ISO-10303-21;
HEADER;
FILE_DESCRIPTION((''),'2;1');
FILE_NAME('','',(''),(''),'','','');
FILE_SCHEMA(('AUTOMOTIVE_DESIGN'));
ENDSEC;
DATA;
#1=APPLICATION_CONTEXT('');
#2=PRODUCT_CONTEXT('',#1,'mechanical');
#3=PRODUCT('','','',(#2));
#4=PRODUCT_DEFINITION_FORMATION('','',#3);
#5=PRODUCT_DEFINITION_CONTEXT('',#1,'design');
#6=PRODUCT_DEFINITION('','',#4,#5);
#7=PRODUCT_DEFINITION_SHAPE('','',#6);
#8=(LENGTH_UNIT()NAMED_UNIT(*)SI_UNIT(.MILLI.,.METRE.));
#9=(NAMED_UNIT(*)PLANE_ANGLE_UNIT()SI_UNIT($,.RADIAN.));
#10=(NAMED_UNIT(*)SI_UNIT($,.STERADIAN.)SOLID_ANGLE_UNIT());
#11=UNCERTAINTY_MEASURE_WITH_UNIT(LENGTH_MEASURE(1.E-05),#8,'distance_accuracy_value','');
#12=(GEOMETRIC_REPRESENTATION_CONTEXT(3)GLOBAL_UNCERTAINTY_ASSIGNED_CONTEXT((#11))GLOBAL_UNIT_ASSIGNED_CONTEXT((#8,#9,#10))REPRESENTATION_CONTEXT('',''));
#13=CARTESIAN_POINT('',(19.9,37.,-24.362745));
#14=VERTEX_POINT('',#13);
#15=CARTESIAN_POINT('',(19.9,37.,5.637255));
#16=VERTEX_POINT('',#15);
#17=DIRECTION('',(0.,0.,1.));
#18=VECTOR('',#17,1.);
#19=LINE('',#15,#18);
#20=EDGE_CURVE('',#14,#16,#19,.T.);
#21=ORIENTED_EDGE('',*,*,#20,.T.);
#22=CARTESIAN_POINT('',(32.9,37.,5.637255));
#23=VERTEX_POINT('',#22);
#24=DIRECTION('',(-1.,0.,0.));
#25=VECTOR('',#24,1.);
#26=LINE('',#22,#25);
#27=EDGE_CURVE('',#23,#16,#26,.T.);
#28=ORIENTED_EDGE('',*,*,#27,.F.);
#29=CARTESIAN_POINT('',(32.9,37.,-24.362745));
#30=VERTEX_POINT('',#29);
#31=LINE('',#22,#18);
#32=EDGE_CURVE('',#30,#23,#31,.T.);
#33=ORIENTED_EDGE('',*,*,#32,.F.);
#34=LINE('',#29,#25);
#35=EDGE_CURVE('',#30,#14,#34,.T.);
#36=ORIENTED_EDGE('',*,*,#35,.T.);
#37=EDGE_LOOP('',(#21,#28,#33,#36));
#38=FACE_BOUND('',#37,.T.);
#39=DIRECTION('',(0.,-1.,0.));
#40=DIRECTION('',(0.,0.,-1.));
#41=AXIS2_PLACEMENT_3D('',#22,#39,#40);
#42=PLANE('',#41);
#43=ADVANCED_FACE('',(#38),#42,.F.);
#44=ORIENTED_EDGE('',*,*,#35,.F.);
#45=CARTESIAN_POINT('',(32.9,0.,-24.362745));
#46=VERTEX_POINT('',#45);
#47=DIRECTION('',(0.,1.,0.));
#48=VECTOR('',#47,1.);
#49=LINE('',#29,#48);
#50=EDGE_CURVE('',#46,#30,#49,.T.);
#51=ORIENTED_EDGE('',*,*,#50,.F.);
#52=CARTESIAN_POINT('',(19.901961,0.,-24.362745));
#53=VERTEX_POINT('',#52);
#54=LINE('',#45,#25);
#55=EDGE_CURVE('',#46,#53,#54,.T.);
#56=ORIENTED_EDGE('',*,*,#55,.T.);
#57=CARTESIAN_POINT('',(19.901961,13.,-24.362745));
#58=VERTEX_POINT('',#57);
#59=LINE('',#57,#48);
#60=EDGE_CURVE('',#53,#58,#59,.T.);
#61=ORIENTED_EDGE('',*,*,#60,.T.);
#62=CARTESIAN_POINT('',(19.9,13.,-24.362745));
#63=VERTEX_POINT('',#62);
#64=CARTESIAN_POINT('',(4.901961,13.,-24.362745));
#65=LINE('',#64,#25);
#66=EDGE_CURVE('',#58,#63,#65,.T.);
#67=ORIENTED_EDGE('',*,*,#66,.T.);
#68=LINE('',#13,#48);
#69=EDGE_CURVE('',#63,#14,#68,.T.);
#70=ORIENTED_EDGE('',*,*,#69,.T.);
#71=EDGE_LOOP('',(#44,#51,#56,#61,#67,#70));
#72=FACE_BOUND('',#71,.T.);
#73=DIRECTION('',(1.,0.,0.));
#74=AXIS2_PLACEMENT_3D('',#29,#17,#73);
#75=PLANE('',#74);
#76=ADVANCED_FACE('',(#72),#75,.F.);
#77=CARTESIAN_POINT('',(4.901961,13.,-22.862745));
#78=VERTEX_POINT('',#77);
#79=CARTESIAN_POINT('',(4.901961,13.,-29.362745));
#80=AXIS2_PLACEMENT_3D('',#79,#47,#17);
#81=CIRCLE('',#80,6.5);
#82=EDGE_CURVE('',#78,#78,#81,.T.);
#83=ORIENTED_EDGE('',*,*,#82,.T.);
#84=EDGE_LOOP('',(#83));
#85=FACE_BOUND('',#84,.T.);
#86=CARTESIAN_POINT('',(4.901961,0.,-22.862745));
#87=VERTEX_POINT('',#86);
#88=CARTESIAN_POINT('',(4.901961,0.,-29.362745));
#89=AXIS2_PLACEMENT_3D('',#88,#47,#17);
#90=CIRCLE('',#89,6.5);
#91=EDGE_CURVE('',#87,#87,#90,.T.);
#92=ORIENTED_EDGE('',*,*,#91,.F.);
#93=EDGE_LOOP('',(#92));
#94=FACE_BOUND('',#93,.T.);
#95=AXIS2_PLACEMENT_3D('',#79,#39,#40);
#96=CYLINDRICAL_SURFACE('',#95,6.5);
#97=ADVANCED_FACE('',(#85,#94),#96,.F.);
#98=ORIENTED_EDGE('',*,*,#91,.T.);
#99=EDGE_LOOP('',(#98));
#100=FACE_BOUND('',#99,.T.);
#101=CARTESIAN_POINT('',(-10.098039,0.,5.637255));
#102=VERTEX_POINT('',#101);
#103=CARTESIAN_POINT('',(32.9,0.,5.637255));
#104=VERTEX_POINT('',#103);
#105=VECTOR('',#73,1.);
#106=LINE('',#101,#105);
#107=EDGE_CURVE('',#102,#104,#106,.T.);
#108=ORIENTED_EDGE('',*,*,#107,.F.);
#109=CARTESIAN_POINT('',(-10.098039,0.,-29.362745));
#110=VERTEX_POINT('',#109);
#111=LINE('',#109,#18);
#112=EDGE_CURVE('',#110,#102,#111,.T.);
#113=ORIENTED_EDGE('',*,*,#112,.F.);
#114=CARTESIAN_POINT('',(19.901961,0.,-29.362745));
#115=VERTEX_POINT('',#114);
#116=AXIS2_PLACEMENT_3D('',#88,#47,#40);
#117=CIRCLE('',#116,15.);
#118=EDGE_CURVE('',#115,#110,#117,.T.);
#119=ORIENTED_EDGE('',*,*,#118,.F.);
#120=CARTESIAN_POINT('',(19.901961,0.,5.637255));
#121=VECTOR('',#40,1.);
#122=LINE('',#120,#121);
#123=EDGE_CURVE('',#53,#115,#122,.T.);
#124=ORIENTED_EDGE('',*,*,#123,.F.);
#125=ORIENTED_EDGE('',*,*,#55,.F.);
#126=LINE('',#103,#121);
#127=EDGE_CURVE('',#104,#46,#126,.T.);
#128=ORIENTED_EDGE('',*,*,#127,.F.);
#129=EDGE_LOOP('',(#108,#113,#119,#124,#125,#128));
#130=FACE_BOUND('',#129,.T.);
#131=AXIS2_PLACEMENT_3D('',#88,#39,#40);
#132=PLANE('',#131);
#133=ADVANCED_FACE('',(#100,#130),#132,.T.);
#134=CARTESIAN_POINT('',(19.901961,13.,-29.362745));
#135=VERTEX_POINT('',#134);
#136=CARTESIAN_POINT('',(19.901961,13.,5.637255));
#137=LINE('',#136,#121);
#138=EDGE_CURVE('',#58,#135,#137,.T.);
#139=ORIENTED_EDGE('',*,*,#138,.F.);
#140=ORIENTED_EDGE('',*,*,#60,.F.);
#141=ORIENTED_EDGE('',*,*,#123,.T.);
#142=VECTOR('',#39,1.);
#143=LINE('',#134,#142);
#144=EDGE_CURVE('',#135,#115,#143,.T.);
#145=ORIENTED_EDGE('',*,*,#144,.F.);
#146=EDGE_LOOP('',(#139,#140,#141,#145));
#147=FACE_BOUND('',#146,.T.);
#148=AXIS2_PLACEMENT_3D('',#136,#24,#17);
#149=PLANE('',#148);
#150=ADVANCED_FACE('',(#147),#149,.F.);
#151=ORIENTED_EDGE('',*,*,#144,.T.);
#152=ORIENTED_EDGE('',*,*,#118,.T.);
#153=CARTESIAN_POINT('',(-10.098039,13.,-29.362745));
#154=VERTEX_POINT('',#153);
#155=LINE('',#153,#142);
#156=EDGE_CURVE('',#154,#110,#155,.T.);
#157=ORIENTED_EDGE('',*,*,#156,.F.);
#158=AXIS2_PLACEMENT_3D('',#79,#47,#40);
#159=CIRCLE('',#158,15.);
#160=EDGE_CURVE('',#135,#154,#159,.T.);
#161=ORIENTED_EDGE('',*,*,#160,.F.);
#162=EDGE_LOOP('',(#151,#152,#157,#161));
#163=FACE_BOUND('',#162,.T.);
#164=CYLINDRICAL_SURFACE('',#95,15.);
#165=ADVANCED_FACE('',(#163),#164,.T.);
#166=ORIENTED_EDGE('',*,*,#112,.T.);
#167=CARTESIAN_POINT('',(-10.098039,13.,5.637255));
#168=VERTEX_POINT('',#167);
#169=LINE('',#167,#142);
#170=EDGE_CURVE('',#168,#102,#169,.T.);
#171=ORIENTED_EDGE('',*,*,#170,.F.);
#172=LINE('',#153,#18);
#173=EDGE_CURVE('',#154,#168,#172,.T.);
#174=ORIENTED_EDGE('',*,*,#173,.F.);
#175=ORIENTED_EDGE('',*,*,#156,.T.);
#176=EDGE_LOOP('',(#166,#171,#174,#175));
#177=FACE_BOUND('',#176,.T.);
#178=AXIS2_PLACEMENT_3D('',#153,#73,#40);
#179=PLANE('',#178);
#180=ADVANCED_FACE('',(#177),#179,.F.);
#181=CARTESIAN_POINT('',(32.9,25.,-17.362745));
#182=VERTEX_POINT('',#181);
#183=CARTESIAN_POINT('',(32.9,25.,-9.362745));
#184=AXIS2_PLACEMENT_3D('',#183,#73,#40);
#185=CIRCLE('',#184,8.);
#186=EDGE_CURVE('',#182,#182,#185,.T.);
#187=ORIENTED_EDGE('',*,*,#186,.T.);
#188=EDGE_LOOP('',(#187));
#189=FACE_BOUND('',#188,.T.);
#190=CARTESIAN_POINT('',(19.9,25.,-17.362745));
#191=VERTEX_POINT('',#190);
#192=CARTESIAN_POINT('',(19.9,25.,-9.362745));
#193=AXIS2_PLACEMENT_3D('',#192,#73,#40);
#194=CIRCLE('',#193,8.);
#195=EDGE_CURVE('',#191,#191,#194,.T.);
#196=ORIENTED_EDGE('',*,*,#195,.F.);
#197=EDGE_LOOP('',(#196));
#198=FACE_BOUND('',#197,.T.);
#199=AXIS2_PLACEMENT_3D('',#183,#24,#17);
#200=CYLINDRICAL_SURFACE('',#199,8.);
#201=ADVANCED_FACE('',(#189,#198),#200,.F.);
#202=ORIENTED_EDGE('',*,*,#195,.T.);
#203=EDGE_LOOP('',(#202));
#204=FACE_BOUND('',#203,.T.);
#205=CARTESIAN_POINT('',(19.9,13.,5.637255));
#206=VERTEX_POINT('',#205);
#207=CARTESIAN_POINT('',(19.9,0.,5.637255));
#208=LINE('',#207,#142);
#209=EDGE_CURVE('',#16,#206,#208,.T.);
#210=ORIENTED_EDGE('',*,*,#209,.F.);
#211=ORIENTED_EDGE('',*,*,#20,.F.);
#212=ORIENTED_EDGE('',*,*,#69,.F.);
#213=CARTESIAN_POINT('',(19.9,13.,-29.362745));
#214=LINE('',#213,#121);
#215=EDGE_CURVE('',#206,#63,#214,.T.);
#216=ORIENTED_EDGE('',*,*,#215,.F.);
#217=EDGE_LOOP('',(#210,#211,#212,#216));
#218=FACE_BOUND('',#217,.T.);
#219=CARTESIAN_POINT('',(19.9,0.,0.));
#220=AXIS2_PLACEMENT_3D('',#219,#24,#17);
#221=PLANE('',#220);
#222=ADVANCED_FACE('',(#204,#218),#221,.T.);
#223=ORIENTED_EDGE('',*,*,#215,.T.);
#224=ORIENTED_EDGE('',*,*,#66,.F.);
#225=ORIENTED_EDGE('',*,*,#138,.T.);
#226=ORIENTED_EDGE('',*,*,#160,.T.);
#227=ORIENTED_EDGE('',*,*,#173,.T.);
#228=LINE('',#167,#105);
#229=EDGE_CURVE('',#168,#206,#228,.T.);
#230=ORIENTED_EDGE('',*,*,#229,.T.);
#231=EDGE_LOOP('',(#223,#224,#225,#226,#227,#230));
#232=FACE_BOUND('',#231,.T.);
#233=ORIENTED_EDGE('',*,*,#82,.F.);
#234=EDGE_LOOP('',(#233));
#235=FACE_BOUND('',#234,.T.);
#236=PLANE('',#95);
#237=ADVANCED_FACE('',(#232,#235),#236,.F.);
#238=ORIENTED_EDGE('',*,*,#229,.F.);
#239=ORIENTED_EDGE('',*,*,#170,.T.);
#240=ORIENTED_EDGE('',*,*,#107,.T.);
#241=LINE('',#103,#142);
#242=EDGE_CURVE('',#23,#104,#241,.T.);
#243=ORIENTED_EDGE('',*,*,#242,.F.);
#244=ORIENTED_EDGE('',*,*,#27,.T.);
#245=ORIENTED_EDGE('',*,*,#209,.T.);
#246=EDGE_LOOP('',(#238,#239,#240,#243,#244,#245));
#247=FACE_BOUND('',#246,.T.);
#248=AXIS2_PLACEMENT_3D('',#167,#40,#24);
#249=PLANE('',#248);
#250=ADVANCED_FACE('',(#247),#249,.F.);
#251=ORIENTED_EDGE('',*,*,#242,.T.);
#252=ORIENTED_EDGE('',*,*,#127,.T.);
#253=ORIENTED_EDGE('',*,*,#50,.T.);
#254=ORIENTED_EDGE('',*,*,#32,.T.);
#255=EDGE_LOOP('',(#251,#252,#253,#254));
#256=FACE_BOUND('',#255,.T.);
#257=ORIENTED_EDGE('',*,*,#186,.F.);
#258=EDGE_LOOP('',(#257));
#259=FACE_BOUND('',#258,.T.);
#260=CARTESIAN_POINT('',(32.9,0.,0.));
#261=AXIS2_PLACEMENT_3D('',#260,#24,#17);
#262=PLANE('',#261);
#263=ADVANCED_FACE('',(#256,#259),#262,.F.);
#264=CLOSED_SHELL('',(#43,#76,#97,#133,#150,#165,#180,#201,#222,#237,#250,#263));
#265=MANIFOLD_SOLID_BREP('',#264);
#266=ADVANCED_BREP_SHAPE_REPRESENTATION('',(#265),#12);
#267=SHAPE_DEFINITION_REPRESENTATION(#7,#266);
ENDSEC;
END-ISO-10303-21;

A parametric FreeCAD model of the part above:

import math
import FreeCAD as App
import Part
import Sketcher


def add_polygon(sketch, points):
    """Adds a closed chain of lines whose ends are joined by coincident constraints."""
    first, n = sketch.GeometryCount, len(points)
    for a, b in zip(points, points[1:] + points[:1]):
        sketch.addGeometry(Part.LineSegment(App.Vector(*a, 0), App.Vector(*b, 0)), False)
    for i in range(n):
        sketch.addConstraint(Sketcher.Constraint("Coincident", first + i, 2, first + (i + 1) % n, 1))

doc = App.newDocument("Part")
params = doc.addObject("Spreadsheet::Sheet", "Params")
for row, (alias, value) in enumerate([
    ("sketch1_diameter", "13 mm"),
    ("sketch1_radius", "15 mm"),
    ("sketch1_height", "35 mm"),
    ("pad1_length", "13 mm"),
    ("sketch2_diameter", "16 mm"),
    ("sketch2_width", "37 mm"),
    ("sketch2_height", "30 mm"),
    ("pad2_length", "13 mm"),
], start=1):
    params.set(f"A{row}", alias)
    params.set(f"B{row}", "=" + value)
    params.setAlias(f"B{row}", alias)

body = doc.addObject("PartDesign::Body", "Body")

# Sketch on XZ plane
sketch1 = body.newObject("Sketcher::SketchObject", "Sketch")
sketch1.AttachmentSupport = (doc.getObject("XZ_Plane"), [""])
sketch1.MapMode = "FlatFace"
sketch1.addGeometry([
    Part.LineSegment(App.Vector(-10, 6, 0), App.Vector(20, 6, 0)),  # 0
    Part.LineSegment(App.Vector(20, 6, 0), App.Vector(20, -29, 0)),  # 1
    Part.ArcOfCircle(Part.Circle(App.Vector(5, -29, 0), App.Vector(0, 0, 1), 15), math.radians(180), math.radians(360)),  # 2
    Part.LineSegment(App.Vector(-10, -29, 0), App.Vector(-10, 6, 0)),  # 3
    Part.Circle(App.Vector(5, -29, 0), App.Vector(0, 0, 1), 6),  # 4
], False)
sketch1.addConstraint([
    Sketcher.Constraint("Coincident", 0, 2, 1, 1),
    Sketcher.Constraint("Tangent", 1, 2, 2, 2),
    Sketcher.Constraint("Tangent", 2, 1, 3, 1),
    Sketcher.Constraint("Coincident", 3, 2, 0, 1),
    Sketcher.Constraint("Horizontal", 0),
    Sketcher.Constraint("Vertical", 1),
    Sketcher.Constraint("Vertical", 3),
    Sketcher.Constraint("Coincident", 4, 3, 2, 3),
    Sketcher.Constraint("Diameter", 4, 13.0),
    Sketcher.Constraint("Radius", 2, 15.0),
    Sketcher.Constraint("DistanceY", 1, 2, 1, 1, 35.0),
    Sketcher.Constraint("DistanceX", -1, 1, 2, 3, 4.901961),
    Sketcher.Constraint("DistanceY", 2, 3, -1, 1, 29.362745),
])
sketch1.setExpression("Constraints[8]", "Params.sketch1_diameter")
sketch1.setExpression("Constraints[9]", "Params.sketch1_radius")
sketch1.setExpression("Constraints[10]", "Params.sketch1_height")
pad1 = body.newObject("PartDesign::Pad", "Pad")
pad1.Profile = sketch1
pad1.setExpression("Length", "Params.pad1_length")
pad1.Reversed = True

# Sketch on YZ plane
sketch2 = body.newObject("Sketcher::SketchObject", "Sketch001")
sketch2.AttachmentSupport = (doc.getObject("YZ_Plane"), [""])
sketch2.MapMode = "FlatFace"
sketch2.AttachmentOffset = App.Placement(App.Vector(0, 0, 19.9), App.Rotation())
add_polygon(sketch2, [(37, 6), (0, 6), (0, -24), (37, -24)])  # lines 0-3
sketch2.addGeometry(Part.Circle(App.Vector(25, -9, 0), App.Vector(0, 0, 1), 8), False)  # 4
sketch2.addConstraint([
    Sketcher.Constraint("Horizontal", 0),
    Sketcher.Constraint("Vertical", 1),
    Sketcher.Constraint("Horizontal", 2),
    Sketcher.Constraint("Vertical", 3),
    Sketcher.Constraint("PointOnObject", 0, 2, -2),
    Sketcher.Constraint("Diameter", 4, 16.0),
    Sketcher.Constraint("DistanceX", 0, 2, 0, 1, 37.0),
    Sketcher.Constraint("DistanceY", 1, 2, 1, 1, 30.0),
    Sketcher.Constraint("DistanceX", -1, 1, 4, 3, 25.0),
    Sketcher.Constraint("DistanceY", 4, 3, 0, 2, 15.0),
    Sketcher.Constraint("DistanceY", 4, 3, -1, 1, 9.362745),
])
sketch2.setExpression("Constraints[9]", "Params.sketch2_diameter")
sketch2.setExpression("Constraints[10]", "Params.sketch2_width")
sketch2.setExpression("Constraints[11]", "Params.sketch2_height")
pad2 = body.newObject("PartDesign::Pad", "Pad001")
pad2.Profile = sketch2
pad2.setExpression("Length", "Params.pad2_length")

doc.recompute()
